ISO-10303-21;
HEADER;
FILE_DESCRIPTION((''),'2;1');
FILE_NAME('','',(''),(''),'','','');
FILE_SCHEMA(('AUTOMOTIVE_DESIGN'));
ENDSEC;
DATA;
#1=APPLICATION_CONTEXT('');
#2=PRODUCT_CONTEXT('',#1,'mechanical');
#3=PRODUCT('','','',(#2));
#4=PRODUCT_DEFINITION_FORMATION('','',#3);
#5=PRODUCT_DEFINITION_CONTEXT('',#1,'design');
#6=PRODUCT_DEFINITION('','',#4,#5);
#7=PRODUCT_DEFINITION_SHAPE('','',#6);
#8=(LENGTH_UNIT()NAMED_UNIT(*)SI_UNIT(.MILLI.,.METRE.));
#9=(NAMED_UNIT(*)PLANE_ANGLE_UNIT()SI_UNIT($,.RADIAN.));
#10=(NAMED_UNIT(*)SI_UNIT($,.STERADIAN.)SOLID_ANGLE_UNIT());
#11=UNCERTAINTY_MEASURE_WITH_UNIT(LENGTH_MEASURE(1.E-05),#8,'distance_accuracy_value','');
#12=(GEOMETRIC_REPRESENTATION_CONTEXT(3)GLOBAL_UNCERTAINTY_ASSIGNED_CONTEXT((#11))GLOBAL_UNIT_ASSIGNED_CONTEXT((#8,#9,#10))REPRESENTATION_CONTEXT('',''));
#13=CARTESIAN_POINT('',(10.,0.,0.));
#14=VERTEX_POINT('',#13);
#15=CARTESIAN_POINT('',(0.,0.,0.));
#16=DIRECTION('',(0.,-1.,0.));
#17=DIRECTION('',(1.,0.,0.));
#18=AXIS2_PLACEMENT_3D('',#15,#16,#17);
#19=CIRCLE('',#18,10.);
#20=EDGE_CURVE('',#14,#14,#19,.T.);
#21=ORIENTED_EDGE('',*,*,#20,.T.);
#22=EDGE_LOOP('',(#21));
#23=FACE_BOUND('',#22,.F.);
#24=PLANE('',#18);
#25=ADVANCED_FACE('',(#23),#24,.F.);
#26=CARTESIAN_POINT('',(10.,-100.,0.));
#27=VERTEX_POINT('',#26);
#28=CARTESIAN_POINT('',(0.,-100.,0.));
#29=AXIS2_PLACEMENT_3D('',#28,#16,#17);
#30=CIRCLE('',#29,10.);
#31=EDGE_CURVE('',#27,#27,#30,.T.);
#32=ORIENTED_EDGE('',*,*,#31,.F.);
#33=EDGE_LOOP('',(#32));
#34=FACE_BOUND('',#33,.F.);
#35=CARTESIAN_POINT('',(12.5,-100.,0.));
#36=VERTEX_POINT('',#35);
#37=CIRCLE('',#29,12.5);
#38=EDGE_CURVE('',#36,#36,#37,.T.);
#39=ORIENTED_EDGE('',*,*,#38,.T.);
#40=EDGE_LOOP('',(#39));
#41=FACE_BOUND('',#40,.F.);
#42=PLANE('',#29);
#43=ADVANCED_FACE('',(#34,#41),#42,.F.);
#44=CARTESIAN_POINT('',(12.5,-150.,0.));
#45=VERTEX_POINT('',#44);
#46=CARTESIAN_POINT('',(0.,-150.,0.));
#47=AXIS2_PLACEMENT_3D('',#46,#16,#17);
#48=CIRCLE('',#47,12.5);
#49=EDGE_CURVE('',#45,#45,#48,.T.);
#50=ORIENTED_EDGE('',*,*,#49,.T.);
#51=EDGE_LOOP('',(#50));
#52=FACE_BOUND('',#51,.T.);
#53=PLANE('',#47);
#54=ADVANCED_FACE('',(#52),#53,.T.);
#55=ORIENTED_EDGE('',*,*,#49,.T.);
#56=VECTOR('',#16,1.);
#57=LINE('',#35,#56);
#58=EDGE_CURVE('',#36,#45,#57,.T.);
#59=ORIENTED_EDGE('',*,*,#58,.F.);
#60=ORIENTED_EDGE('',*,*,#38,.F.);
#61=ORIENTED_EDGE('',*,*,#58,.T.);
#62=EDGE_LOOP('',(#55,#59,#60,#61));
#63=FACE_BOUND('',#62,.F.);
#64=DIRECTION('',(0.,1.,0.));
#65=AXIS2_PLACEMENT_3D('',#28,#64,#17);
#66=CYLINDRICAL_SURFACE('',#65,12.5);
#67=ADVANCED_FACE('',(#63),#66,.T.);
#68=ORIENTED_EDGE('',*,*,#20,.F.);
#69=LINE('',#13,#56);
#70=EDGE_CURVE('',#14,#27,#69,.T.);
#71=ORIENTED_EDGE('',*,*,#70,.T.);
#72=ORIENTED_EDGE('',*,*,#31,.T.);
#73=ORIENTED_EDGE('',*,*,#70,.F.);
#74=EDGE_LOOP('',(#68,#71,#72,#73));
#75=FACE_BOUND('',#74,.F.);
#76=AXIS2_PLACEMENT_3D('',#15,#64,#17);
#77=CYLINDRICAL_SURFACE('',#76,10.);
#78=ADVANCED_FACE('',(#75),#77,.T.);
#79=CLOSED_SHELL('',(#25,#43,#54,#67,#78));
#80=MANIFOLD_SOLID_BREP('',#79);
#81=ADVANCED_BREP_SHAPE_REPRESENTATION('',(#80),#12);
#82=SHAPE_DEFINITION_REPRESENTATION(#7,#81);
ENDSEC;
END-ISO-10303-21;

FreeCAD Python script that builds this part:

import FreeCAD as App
import Part
import Sketcher
from FreeCAD import Vector
Q = App.Units.Quantity

doc = App.newDocument("Part")
body = doc.addObject("PartDesign::Body", "Body")

sketch1 = body.newObject("Sketcher::SketchObject", "Sketch")
sketch1.AttachmentSupport = (doc.getObject("XZ_Plane"), [""])
sketch1.MapMode = "FlatFace"
sketch1.addGeometry(Part.Circle(Vector(0, 0, 0), Vector(0, 0, 1), 10), False)
sketch1.addConstraint([
    Sketcher.Constraint("Coincident", 0, 3, -1, 1),
    Sketcher.Constraint("Diameter", 0, Q("20 mm")),
])
pad1 = body.newObject("PartDesign::Pad", "Pad")
pad1.Profile = sketch1
pad1.Length = 100

sketch2 = body.newObject("Sketcher::SketchObject", "Sketch001")
sketch2.AttachmentSupport = (doc.getObject("XZ_Plane"), [""])
sketch2.MapMode = "FlatFace"
sketch2.AttachmentOffset = App.Placement(Vector(0, 0, 100), App.Rotation())
sketch2.addGeometry(Part.Circle(Vector(0, 0, 0), Vector(0, 0, 1), 12.5), False)
sketch2.addConstraint([
    Sketcher.Constraint("Coincident", 0, 3, -1, 1),
    Sketcher.Constraint("Diameter", 0, Q("25 mm")),
])
pad2 = body.newObject("PartDesign::Pad", "Pad001")
pad2.Profile = sketch2
pad2.Length = 50

doc.recompute()
